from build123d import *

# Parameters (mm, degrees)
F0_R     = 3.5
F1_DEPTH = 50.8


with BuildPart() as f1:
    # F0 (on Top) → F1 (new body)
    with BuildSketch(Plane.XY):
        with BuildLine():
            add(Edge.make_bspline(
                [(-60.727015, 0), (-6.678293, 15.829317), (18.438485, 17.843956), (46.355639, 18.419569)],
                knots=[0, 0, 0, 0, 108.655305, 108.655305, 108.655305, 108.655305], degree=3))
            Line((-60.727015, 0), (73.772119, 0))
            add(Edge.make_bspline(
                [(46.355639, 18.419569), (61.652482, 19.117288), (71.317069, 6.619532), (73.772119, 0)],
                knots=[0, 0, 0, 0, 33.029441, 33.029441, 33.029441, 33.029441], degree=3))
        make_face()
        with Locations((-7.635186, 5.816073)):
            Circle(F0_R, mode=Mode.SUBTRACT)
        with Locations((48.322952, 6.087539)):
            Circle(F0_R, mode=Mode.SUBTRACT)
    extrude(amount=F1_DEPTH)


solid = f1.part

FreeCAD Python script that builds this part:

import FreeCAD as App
import Part
import Sketcher
from FreeCAD import Vector
Q = App.Units.Quantity

doc = App.newDocument("Part")
body = doc.addObject("PartDesign::Body", "Body")

sketch1 = body.newObject("Sketcher::SketchObject", "Sketch")
sketch1.AttachmentSupport = (doc.getObject("XY_Plane"), [""])
sketch1.MapMode = "FlatFace"
sketch1.addGeometry([
    Part.BSplineCurve([Vector(-60.727015, 0, 0), Vector(-6.678293, 15.829317, 0), Vector(18.438485, 17.843956, 0), Vector(46.355639, 18.419569, 0)], [4, 4], [0, 108.655305], False, 3, [1, 1, 1, 1], False),
    Part.LineSegment(Vector(-60.727015, 0, 0), Vector(73.772119, 0, 0)),
    Part.BSplineCurve([Vector(46.355639, 18.419569, 0), Vector(61.652482, 19.117288, 0), Vector(71.317069, 6.619532, 0), Vector(73.772119, 0, 0)], [4, 4], [0, 33.029441], False, 3, [1, 1, 1, 1], False),
    Part.Circle(Vector(-7.635186, 5.816073, 0), Vector(0, 0, 1), 3.5),
    Part.Circle(Vector(48.322952, 6.087539, 0), Vector(0, 0, 1), 3.5),
], False)
sketch1.addConstraint([
    Sketcher.Constraint("Block", 0),
    Sketcher.Constraint("Block", 2),
    Sketcher.Constraint("Coincident", 0, 1, 1, 1),
    Sketcher.Constraint("Coincident", 1, 2, 2, 2),
    Sketcher.Constraint("Equal", 3, 4),
    Sketcher.Constraint("Diameter", 3, Q("7 mm")),
    Sketcher.Constraint("DistanceY", -1, 1, 4, 3, Q("6.087539 mm")),
    Sketcher.Constraint("DistanceX", 3, 3, -1, 1, Q("7.635186 mm")),
    Sketcher.Constraint("DistanceY", -1, 1, 3, 3, Q("5.816073 mm")),
    Sketcher.Constraint("DistanceX", -1, 1, 4, 3, Q("48.322952 mm")),
])
pad1 = body.newObject("PartDesign::Pad", "Pad")
pad1.Profile = sketch1
pad1.Length = 50.8

doc.recompute()
